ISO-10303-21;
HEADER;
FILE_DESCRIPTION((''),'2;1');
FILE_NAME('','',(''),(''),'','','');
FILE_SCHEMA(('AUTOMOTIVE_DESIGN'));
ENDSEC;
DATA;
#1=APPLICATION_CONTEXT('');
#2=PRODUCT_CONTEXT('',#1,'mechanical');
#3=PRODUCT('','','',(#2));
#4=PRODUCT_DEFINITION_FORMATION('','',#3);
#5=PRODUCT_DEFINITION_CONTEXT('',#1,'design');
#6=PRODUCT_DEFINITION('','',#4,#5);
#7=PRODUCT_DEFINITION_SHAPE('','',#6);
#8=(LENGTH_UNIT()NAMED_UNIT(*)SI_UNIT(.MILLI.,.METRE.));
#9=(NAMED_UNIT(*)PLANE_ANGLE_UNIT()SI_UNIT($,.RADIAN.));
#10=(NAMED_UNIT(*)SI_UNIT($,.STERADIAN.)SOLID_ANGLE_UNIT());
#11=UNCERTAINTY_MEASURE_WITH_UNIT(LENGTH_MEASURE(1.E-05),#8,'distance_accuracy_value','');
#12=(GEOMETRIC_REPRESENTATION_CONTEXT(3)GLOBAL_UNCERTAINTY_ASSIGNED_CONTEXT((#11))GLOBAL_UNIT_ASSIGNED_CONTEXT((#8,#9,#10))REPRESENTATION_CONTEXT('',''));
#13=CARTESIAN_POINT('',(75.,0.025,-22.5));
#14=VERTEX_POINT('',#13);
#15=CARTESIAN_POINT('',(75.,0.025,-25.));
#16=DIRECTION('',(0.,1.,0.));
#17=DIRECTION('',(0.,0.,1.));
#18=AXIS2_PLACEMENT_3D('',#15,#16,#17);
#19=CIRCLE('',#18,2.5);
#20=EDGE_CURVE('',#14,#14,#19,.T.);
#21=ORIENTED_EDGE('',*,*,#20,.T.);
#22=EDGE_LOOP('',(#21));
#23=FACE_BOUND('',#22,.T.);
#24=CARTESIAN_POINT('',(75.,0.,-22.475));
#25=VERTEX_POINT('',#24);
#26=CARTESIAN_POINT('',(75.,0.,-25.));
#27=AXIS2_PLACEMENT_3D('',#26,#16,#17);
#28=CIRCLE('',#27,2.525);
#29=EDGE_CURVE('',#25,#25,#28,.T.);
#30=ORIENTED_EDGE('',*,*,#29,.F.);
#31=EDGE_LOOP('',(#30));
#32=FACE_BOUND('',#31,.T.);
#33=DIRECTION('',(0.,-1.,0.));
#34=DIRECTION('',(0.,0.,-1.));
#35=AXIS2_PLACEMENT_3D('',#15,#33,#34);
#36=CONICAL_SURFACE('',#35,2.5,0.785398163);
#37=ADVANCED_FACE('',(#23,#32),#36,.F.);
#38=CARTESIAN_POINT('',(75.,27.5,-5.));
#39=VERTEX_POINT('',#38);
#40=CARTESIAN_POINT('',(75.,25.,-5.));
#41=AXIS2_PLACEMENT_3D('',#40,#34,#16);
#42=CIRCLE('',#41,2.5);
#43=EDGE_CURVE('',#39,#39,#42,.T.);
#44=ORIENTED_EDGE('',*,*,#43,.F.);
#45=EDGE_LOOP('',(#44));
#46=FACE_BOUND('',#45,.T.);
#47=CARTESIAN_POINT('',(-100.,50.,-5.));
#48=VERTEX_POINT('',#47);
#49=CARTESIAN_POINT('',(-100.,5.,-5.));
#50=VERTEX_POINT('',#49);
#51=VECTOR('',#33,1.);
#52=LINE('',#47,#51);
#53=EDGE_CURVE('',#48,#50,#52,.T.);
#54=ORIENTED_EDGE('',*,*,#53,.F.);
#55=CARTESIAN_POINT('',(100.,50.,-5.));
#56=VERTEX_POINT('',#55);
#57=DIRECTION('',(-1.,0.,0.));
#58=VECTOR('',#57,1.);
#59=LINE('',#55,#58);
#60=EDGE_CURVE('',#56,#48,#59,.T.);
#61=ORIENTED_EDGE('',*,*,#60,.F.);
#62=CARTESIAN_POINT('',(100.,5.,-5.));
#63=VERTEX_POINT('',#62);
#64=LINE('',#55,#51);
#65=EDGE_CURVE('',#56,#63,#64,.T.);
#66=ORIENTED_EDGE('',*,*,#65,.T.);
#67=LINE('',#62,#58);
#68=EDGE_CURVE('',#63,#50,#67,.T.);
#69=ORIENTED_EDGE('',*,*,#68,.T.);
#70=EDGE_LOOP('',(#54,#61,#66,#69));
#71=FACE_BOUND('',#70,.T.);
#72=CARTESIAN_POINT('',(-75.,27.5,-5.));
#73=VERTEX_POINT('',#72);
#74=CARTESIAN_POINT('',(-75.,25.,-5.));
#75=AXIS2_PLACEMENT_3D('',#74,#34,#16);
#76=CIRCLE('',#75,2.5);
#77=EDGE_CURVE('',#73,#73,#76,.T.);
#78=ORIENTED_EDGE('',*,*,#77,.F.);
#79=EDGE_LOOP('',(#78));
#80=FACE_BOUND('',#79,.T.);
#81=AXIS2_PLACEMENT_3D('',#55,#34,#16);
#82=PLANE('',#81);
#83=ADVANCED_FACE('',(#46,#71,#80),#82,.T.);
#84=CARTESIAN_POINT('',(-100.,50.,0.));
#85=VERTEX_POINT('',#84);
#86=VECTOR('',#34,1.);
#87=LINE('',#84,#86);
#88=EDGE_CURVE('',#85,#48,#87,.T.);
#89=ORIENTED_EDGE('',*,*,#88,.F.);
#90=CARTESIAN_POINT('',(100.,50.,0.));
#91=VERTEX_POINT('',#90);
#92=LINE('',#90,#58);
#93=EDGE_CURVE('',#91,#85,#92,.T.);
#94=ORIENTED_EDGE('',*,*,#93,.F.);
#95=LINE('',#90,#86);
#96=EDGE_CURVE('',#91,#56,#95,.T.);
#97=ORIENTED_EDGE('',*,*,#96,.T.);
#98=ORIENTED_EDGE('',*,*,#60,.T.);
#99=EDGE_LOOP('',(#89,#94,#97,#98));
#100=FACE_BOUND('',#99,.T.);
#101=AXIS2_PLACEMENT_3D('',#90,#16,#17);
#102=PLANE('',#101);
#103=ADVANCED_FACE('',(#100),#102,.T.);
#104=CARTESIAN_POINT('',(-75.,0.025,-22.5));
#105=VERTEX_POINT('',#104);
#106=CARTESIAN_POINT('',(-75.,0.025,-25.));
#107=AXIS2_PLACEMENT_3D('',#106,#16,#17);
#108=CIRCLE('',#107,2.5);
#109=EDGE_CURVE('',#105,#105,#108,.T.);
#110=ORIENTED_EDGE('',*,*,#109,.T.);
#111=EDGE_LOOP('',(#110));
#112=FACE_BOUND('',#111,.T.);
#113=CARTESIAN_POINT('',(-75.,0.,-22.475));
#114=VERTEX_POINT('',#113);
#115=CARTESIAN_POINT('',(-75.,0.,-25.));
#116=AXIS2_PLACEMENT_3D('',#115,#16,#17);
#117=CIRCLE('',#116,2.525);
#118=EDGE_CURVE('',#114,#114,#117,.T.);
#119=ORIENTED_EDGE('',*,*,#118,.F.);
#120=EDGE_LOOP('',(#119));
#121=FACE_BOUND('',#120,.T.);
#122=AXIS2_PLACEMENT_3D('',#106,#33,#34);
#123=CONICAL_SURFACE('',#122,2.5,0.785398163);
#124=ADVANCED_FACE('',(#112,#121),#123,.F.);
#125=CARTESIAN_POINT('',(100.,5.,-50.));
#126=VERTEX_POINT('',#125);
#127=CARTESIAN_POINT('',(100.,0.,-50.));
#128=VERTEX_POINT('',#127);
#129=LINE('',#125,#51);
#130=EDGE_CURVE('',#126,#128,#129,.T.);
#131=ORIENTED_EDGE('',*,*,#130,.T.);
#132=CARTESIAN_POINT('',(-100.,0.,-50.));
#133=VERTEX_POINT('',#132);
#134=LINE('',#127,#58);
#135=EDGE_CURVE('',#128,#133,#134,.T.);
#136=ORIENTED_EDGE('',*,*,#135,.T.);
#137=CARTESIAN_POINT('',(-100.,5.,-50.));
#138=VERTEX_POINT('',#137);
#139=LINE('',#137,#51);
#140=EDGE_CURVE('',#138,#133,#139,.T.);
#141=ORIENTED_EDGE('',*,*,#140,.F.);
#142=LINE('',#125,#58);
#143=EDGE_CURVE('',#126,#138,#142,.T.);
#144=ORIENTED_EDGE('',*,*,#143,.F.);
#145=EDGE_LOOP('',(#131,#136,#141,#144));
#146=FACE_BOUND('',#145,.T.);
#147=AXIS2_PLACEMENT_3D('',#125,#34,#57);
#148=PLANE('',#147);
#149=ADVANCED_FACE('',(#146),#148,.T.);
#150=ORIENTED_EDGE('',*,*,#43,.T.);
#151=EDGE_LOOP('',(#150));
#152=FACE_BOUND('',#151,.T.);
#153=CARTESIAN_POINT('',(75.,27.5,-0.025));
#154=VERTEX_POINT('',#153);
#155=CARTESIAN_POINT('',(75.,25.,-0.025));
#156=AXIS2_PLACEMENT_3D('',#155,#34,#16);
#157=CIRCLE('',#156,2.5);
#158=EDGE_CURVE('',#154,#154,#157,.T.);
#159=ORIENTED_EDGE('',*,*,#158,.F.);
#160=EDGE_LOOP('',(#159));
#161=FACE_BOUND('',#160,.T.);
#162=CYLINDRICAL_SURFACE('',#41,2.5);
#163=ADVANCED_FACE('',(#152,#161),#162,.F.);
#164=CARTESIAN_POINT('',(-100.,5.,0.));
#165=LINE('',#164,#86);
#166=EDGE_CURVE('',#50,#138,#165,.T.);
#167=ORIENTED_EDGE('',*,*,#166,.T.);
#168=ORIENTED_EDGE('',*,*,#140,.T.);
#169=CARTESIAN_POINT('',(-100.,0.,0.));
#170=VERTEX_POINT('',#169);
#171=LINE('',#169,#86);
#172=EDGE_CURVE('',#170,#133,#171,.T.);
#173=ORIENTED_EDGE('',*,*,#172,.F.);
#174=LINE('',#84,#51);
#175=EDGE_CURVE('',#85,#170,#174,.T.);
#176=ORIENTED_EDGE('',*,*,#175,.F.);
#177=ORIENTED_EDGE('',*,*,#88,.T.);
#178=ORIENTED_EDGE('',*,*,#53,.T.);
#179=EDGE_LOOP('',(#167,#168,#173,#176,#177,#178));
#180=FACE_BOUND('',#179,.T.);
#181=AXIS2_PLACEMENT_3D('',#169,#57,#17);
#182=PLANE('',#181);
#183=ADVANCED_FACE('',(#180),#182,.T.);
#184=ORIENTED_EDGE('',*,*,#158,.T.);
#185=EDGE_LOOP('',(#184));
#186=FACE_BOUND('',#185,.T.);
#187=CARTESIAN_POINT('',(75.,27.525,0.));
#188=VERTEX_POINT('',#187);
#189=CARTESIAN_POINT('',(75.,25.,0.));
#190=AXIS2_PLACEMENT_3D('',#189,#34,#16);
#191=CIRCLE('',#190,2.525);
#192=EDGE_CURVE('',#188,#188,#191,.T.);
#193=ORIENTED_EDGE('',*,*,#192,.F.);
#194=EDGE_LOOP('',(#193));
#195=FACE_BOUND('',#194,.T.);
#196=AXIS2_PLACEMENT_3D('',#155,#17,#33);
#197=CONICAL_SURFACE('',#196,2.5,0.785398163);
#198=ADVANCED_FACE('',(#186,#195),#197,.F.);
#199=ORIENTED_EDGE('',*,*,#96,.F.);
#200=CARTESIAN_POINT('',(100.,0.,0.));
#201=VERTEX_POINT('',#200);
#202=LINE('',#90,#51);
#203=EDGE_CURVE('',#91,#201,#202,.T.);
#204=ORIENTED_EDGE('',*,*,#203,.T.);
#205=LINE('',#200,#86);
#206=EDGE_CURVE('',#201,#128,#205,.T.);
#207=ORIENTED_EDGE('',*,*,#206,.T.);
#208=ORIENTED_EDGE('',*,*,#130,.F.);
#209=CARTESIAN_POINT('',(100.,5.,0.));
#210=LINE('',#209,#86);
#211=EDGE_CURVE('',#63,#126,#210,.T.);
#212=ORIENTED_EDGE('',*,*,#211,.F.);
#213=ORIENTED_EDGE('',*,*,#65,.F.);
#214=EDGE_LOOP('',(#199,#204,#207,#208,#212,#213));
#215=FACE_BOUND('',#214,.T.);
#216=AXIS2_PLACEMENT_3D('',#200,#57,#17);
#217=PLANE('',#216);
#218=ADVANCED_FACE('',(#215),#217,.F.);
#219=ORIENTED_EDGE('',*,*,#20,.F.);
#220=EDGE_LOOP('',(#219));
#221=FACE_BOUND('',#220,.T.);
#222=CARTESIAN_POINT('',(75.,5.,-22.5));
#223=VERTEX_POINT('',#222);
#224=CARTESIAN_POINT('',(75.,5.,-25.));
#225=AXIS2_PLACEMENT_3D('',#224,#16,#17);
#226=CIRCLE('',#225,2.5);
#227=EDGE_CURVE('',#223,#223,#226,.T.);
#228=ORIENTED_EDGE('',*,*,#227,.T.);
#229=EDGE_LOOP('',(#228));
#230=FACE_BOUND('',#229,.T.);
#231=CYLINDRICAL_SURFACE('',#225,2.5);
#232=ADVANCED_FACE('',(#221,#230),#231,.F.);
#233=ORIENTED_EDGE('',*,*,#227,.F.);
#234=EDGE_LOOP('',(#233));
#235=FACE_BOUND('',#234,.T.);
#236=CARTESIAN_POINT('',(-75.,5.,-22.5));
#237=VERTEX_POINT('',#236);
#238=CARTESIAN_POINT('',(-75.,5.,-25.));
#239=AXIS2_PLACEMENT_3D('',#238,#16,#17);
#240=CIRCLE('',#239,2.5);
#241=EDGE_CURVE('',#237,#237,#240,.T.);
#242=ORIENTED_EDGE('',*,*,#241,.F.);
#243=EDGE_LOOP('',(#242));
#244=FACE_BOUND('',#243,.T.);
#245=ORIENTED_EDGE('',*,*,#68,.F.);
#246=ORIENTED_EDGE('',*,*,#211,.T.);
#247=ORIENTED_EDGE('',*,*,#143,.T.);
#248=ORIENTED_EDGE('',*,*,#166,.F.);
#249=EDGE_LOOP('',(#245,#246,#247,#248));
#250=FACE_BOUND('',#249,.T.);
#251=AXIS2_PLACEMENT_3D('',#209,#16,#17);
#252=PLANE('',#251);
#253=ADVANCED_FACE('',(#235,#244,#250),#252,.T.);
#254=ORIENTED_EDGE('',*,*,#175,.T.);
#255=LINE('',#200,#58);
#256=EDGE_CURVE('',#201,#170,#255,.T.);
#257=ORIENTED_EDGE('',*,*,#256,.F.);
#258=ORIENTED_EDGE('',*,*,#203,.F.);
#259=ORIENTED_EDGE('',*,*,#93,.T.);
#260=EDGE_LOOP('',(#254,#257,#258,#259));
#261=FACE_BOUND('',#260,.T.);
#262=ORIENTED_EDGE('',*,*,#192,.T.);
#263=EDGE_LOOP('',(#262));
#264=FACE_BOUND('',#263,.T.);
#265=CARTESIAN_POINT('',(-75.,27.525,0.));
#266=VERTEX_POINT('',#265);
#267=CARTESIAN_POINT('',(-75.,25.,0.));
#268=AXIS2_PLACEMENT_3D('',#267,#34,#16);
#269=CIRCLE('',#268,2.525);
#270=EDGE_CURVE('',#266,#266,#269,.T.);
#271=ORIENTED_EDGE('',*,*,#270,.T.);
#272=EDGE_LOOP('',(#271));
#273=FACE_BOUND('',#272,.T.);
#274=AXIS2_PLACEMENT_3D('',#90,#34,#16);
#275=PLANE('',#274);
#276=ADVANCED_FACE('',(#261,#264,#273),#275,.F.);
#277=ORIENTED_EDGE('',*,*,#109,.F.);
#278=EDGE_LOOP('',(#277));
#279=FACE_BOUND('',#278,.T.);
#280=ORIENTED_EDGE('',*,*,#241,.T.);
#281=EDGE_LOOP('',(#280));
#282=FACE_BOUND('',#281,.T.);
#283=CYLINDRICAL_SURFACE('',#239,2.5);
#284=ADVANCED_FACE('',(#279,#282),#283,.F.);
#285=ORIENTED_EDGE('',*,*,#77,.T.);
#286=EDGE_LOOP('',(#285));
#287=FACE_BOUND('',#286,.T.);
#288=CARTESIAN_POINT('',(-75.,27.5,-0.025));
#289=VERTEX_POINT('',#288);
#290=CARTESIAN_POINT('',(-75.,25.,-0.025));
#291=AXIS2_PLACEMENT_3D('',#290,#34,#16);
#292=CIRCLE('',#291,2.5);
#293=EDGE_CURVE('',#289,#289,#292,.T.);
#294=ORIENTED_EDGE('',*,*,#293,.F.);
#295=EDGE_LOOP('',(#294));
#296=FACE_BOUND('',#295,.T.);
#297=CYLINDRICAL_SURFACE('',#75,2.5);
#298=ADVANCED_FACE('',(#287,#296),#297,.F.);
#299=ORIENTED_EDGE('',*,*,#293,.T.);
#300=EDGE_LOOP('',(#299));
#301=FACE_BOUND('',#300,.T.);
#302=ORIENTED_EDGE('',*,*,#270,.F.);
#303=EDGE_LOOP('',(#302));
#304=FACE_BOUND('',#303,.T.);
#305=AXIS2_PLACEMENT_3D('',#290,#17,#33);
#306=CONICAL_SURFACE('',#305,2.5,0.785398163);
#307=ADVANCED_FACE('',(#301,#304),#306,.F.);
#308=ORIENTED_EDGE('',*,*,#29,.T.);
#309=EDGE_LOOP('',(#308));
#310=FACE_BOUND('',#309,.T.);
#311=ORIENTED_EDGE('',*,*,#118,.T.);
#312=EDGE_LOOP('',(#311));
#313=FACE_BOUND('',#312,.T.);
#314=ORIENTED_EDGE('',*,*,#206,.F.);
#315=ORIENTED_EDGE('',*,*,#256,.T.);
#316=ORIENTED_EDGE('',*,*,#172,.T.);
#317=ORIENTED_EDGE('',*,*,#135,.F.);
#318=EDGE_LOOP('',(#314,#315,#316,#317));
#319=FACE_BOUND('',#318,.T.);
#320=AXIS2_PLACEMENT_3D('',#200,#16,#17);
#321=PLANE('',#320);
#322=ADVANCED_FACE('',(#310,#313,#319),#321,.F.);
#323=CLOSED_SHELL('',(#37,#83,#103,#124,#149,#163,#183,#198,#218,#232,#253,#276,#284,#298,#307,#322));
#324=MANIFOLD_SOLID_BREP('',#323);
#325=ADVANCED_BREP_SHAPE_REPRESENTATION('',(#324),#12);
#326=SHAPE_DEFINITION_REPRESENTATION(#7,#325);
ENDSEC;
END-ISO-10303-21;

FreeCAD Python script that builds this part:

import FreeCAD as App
import Part
import Sketcher

V = App.Vector
Q = App.Units.Quantity


def add_polygon(sketch, points):
    """Adds a closed chain of lines whose ends are joined by coincident constraints."""
    first, n = sketch.GeometryCount, len(points)
    for a, b in zip(points, points[1:] + points[:1]):
        sketch.addGeometry(Part.LineSegment(App.Vector(*a, 0), App.Vector(*b, 0)), False)
    for i in range(n):
        sketch.addConstraint(Sketcher.Constraint("Coincident", first + i, 2, first + (i + 1) % n, 1))

doc = App.newDocument("Part")
params = doc.addObject("Spreadsheet::Sheet", "Params")
for row, (alias, value) in enumerate([
    ("sketch1_width", "50 mm"),
    ("sketch1_width2", "5 mm"),
    ("pad1_length", "200 mm"),
    ("sketch2_height", "5 mm"),
    ("sketch2_width", "2.5 mm"),
    ("groove_angle", "360 deg"),
    ("linearpattern_pitch", "150 mm"),
    ("sketch3_width", "5 mm"),
    ("sketch3_height", "2.5 mm"),
    ("groove2_angle", "360 deg"),
    ("linearpattern2_pitch", "150 mm"),
], start=1):
    params.set(f"A{row}", alias)
    params.set(f"B{row}", "=" + value)
    params.setAlias(f"B{row}", alias)

body = doc.addObject("PartDesign::Body", "Body")

# Sketch on YZ plane
sketch1 = body.newObject("Sketcher::SketchObject", "Sketch")
sketch1.AttachmentSupport = (doc.getObject("YZ_Plane"), [""])
sketch1.MapMode = "FlatFace"
add_polygon(sketch1, [(50, 0), (0, 0), (0, -50), (5, -50), (5, -5), (50, -5)])  # lines 0-5
sketch1.addConstraint([
    Sketcher.Constraint("Horizontal", 0),
    Sketcher.Constraint("Vertical", 1),
    Sketcher.Constraint("Horizontal", 2),
    Sketcher.Constraint("Vertical", 3),
    Sketcher.Constraint("Horizontal", 4),
    Sketcher.Constraint("Vertical", 5),
    Sketcher.Constraint("Coincident", 0, 2, -1, 1),
    Sketcher.Constraint("Equal", 0, 1),
    Sketcher.Constraint("Equal", 4, 3),
    Sketcher.Constraint("DistanceX", 0, 2, 0, 1, Q("50 mm")),
    Sketcher.Constraint("DistanceX", 2, 1, 2, 2, Q("5 mm")),
])
sketch1.setExpression("Constraints[15]", "Params.sketch1_width")
sketch1.setExpression("Constraints[16]", "Params.sketch1_width2")
pad1 = body.newObject("PartDesign::Pad", "Pad")
pad1.Profile = sketch1
pad1.setExpression("Length", "Params.pad1_length")
pad1.Midplane = True

# Sketch on YZ plane
sketch2 = body.newObject("Sketcher::SketchObject", "Sketch001")
sketch2.AttachmentSupport = (doc.getObject("YZ_Plane"), [""])
sketch2.MapMode = "FlatFace"
sketch2.AttachmentOffset = App.Placement(V(0, 0, 75), App.Rotation())
add_polygon(sketch2, [(25, 0), (25, -5), (27.5, -5), (27.5, -0.025), (27.525, 0)])  # lines 0-4
sketch2.addGeometry(Part.LineSegment(V(25, -5, 0), V(25, 0, 0)), True)  # axis
sketch2.addConstraint([
    Sketcher.Constraint("Vertical", 0),
    Sketcher.Constraint("Horizontal", 1),
    Sketcher.Constraint("Vertical", 2),
    Sketcher.Constraint("Horizontal", 4),
    Sketcher.Constraint("Vertical", 5),
    Sketcher.Constraint("Coincident", 5, 1, 0, 2),
    Sketcher.Constraint("PointOnObject", 3, 2, -1),
    Sketcher.Constraint("PointOnObject", 5, 2, -1),
    Sketcher.Constraint("DistanceY", 0, 2, 0, 1, Q("5 mm")),
    Sketcher.Constraint("Angle", 3, Q("45 deg")),
    Sketcher.Constraint("DistanceX", 1, 1, 1, 2, Q("2.5 mm")),
    Sketcher.Constraint("DistanceX", -1, 1, 0, 2, Q("25 mm")),
    Sketcher.Constraint("DistanceX", 4, 2, 4, 1, Q("2.525 mm")),
])
sketch2.setExpression("Constraints[13]", "Params.sketch2_height")
sketch2.setExpression("Constraints[15]", "Params.sketch2_width")
groove = body.newObject("PartDesign::Groove", "Groove")
groove.Profile = sketch2
groove.ReferenceAxis = (sketch2, ["Axis0"])
groove.setExpression("Angle", "Params.groove_angle")
doc.recompute()

linearpattern = body.newObject("PartDesign::LinearPattern", "LinearPattern")
linearpattern.Originals = [groove]
linearpattern.Direction = (doc.getObject("X_Axis"), [""])
linearpattern.Mode = "offset"
linearpattern.setExpression("Offset", "Params.linearpattern_pitch")
linearpattern.Occurrences = 2
linearpattern.Reversed = True
body.Tip = linearpattern

# Sketch on YZ plane
sketch3 = body.newObject("Sketcher::SketchObject", "Sketch002")
sketch3.AttachmentSupport = (doc.getObject("YZ_Plane"), [""])
sketch3.MapMode = "FlatFace"
sketch3.AttachmentOffset = App.Placement(V(0, 0, -75), App.Rotation())
add_polygon(sketch3, [(0, -25), (5, -25), (5, -22.5), (0.025, -22.5), (0, -22.475)])  # lines 0-4
sketch3.addGeometry(Part.LineSegment(V(5, -25, 0), V(0, -25, 0)), True)  # axis
sketch3.addConstraint([
    Sketcher.Constraint("Horizontal", 0),
    Sketcher.Constraint("Vertical", 1),
    Sketcher.Constraint("Horizontal", 2),
    Sketcher.Constraint("Vertical", 4),
    Sketcher.Constraint("Horizontal", 5),
    Sketcher.Constraint("Coincident", 5, 1, 0, 2),
    Sketcher.Constraint("PointOnObject", 3, 2, -2),
    Sketcher.Constraint("PointOnObject", 5, 2, -2),
    Sketcher.Constraint("DistanceX", 0, 1, 0, 2, Q("5 mm")),
    Sketcher.Constraint("Angle", 3, Q("135 deg")),
    Sketcher.Constraint("DistanceY", 1, 1, 1, 2, Q("2.5 mm")),
    Sketcher.Constraint("DistanceY", 0, 2, -1, 1, Q("25 mm")),
    Sketcher.Constraint("DistanceX", 2, 2, 2, 1, Q("4.975 mm")),
])
sketch3.setExpression("Constraints[13]", "Params.sketch3_width")
sketch3.setExpression("Constraints[15]", "Params.sketch3_height")
groove2 = body.newObject("PartDesign::Groove", "Groove001")
groove2.Profile = sketch3
groove2.ReferenceAxis = (sketch3, ["Axis0"])
groove2.setExpression("Angle", "Params.groove2_angle")
doc.recompute()

linearpattern2 = body.newObject("PartDesign::LinearPattern", "LinearPattern001")
linearpattern2.Originals = [groove2]
linearpattern2.Direction = (doc.getObject("X_Axis"), [""])
linearpattern2.Mode = "offset"
linearpattern2.setExpression("Offset", "Params.linearpattern2_pitch")
linearpattern2.Occurrences = 2
body.Tip = linearpattern2

doc.recompute()
